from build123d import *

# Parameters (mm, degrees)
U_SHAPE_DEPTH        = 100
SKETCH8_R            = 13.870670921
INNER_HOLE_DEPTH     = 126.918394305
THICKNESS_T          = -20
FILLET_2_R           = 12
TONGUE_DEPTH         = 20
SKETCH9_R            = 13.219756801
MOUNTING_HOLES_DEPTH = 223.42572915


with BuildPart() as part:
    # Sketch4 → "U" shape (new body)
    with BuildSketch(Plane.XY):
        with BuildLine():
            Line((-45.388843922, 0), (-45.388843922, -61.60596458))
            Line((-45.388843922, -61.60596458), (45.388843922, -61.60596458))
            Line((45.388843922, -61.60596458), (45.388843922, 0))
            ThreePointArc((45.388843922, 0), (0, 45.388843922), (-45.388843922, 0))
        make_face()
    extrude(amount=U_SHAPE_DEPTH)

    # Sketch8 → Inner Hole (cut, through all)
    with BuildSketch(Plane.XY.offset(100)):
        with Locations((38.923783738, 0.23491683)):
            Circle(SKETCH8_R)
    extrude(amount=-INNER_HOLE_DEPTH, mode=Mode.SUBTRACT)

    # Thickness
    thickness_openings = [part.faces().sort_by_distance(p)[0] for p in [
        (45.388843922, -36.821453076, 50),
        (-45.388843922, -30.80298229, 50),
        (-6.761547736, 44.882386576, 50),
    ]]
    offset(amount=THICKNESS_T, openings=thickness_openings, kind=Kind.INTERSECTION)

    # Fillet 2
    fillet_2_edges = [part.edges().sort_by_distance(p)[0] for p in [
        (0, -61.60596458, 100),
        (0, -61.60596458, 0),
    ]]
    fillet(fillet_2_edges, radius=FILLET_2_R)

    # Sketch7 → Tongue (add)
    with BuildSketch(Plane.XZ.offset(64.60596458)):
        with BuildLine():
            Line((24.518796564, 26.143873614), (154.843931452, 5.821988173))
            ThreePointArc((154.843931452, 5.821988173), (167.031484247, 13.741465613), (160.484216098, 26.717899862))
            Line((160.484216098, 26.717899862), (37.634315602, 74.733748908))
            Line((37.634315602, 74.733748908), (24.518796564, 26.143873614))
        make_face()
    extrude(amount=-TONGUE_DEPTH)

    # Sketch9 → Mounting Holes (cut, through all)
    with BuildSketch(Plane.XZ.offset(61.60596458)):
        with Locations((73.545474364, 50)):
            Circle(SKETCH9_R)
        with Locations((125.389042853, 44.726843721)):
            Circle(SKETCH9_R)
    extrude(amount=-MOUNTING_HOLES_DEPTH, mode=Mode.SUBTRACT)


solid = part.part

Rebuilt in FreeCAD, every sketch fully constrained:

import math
import FreeCAD as App
import Part
import Sketcher

V = App.Vector
Q = App.Units.Quantity


def edges_at(feature, points):
    """Names of the edges that pass closest to the given points."""
    edges = feature.Shape.Edges
    near = lambda p: min(range(len(edges)), key=lambda i: edges[i].distToShape(Part.Vertex(*p))[0])
    return sorted({f"Edge{near(p) + 1}" for p in points})


def faces_at(feature, points):
    """Names of the faces that lie closest to the given points."""
    faces = feature.Shape.Faces
    near = lambda p: min(range(len(faces)), key=lambda i: faces[i].distToShape(Part.Vertex(*p))[0])
    return sorted({f"Face{near(p) + 1}" for p in points})

doc = App.newDocument("Part")
params = doc.addObject("Spreadsheet::Sheet", "Params")
for row, (alias, value) in enumerate([
    ("pad1_length", "100 mm"),
    ("thickness_wall", "20 mm"),
    ("fillet_radius", "12 mm"),
    ("pad2_length", "20 mm"),
], start=1):
    params.set(f"A{row}", alias)
    params.set(f"B{row}", "=" + value)
    params.setAlias(f"B{row}", alias)

body = doc.addObject("PartDesign::Body", "Body")

# Sketch on XY plane
sketch1 = body.newObject("Sketcher::SketchObject", "Sketch")
sketch1.AttachmentSupport = (doc.getObject("XY_Plane"), [""])
sketch1.MapMode = "FlatFace"
sketch1.addGeometry(Part.LineSegment(V(-45.388844, 0, 0), V(-45.388844, -61.605965, 0)), False)
sketch1.addGeometry(Part.LineSegment(V(-45.388844, -61.605965, 0), V(45.388844, -61.605965, 0)), False)
sketch1.addGeometry(Part.LineSegment(V(45.388844, -61.605965, 0), V(45.388844, 0, 0)), False)
sketch1.addGeometry(Part.ArcOfCircle(Part.Circle(V(0, 0, 0), V(0, 0, 1), 45.388844), math.radians(0), math.radians(180)), False)
sketch1.addConstraint(Sketcher.Constraint("Coincident", 0, 2, 1, 1))
sketch1.addConstraint(Sketcher.Constraint("Coincident", 1, 2, 2, 1))
sketch1.addConstraint(Sketcher.Constraint("Tangent", 2, 2, 3, 1))
sketch1.addConstraint(Sketcher.Constraint("Tangent", 3, 2, 0, 1))
sketch1.addConstraint(Sketcher.Constraint("Vertical", 0))
sketch1.addConstraint(Sketcher.Constraint("Horizontal", 1))
sketch1.addConstraint(Sketcher.Constraint("Vertical", 2))
sketch1.addConstraint(Sketcher.Constraint("Coincident", 3, 3, -1, 1))
sketch1.addConstraint(Sketcher.Constraint("Radius", 3, Q("45.388844 mm")))
sketch1.addConstraint(Sketcher.Constraint("DistanceY", 0, 2, 0, 1, Q("61.605965 mm")))
pad1 = body.newObject("PartDesign::Pad", "Pad")
pad1.Profile = sketch1
pad1.setExpression("Length", "Params.pad1_length")

# Sketch on XY plane
sketch2 = body.newObject("Sketcher::SketchObject", "Sketch001")
sketch2.AttachmentSupport = (doc.getObject("XY_Plane"), [""])
sketch2.MapMode = "FlatFace"
sketch2.AttachmentOffset = App.Placement(V(0, 0, 100), App.Rotation())
sketch2.addGeometry(Part.Circle(V(38.923784, 0.234917, 0), V(0, 0, 1), 13.870671), False)
sketch2.addConstraint(Sketcher.Constraint("Diameter", 0, Q("27.741342 mm")))
sketch2.addConstraint(Sketcher.Constraint("DistanceX", -1, 1, 0, 3, Q("38.923784 mm")))
sketch2.addConstraint(Sketcher.Constraint("DistanceY", -1, 1, 0, 3, Q("0.234917 mm")))
pocket1 = body.newObject("PartDesign::Pocket", "Pocket")
pocket1.Profile = sketch2
pocket1.Type = "ThroughAll"
doc.recompute()

thickness = body.newObject("PartDesign::Thickness", "Thickness")
thickness.Base = (pocket1, faces_at(pocket1, [(45.389, -36.821, 50), (-45.389, -30.803, 50), (-6.762, 44.882, 50)]))
thickness.setExpression("Value", "Params.thickness_wall")
thickness.Reversed = True
thickness.Join = "Intersection"
doc.recompute()

fillet = body.newObject("PartDesign::Fillet", "Fillet")
fillet.Base = (thickness, edges_at(thickness, [(0, -61.606, 100), (0, -61.606, 0)]))
fillet.setExpression("Radius", "Params.fillet_radius")

# Sketch on XZ plane
sketch3 = body.newObject("Sketcher::SketchObject", "Sketch002")
sketch3.AttachmentSupport = (doc.getObject("XZ_Plane"), [""])
sketch3.MapMode = "FlatFace"
sketch3.AttachmentOffset = App.Placement(V(0, 0, 64.605965), App.Rotation())
sketch3.addGeometry(Part.LineSegment(V(24.518797, 26.143874, 0), V(154.843931, 5.821988, 0)), False)
sketch3.addGeometry(Part.ArcOfCircle(Part.Circle(V(156.521207, 16.57843, 0), V(0, 0, 1), 10.886427), math.radians(-98.862884), math.radians(68.651971)), False)
sketch3.addGeometry(Part.LineSegment(V(160.484216, 26.7179, 0), V(37.634316, 74.733749, 0)), False)
sketch3.addGeometry(Part.LineSegment(V(37.634316, 74.733749, 0), V(24.518797, 26.143874, 0)), False)
sketch3.addConstraint(Sketcher.Constraint("Tangent", 0, 2, 1, 1))
sketch3.addConstraint(Sketcher.Constraint("Tangent", 1, 2, 2, 1))
sketch3.addConstraint(Sketcher.Constraint("Coincident", 2, 2, 3, 1))
sketch3.addConstraint(Sketcher.Constraint("Coincident", 3, 2, 0, 1))
sketch3.addConstraint(Sketcher.Constraint("Equal", 0, 2))
sketch3.addConstraint(Sketcher.Constraint("Radius", 1, Q("10.886427 mm")))
sketch3.addConstraint(Sketcher.Constraint("DistanceY", -1, 1, 1, 2, Q("26.7179 mm")))
sketch3.addConstraint(Sketcher.Constraint("DistanceX", 2, 2, 1, 2, Q("122.8499 mm")))
sketch3.addConstraint(Sketcher.Constraint("DistanceY", -1, 1, 1, 3, Q("16.57843 mm")))
sketch3.addConstraint(Sketcher.Constraint("DistanceX", -1, 1, 0, 2, Q("154.843931 mm")))
sketch3.addConstraint(Sketcher.Constraint("DistanceY", -1, 1, 0, 2, Q("5.821988 mm")))
pad2 = body.newObject("PartDesign::Pad", "Pad001")
pad2.Profile = sketch3
pad2.setExpression("Length", "Params.pad2_length")
pad2.Reversed = True

# Sketch on XZ plane
sketch4 = body.newObject("Sketcher::SketchObject", "Sketch003")
sketch4.AttachmentSupport = (doc.getObject("XZ_Plane"), [""])
sketch4.MapMode = "FlatFace"
sketch4.AttachmentOffset = App.Placement(V(0, 0, 61.605965), App.Rotation())
sketch4.addGeometry(Part.Circle(V(73.545474, 50, 0), V(0, 0, 1), 13.219757), False)
sketch4.addGeometry(Part.Circle(V(125.389043, 44.726844, 0), V(0, 0, 1), 13.219757), False)
sketch4.addConstraint(Sketcher.Constraint("Equal", 0, 1))
sketch4.addConstraint(Sketcher.Constraint("DistanceY", -1, 1, 0, 3, Q("50 mm")))
sketch4.addConstraint(Sketcher.Constraint("Diameter", 0, Q("26.439514 mm")))
sketch4.addConstraint(Sketcher.Constraint("DistanceX", 0, 3, 1, 3, Q("51.843568 mm")))
sketch4.addConstraint(Sketcher.Constraint("DistanceX", -1, 1, 0, 3, Q("73.545474 mm")))
sketch4.addConstraint(Sketcher.Constraint("DistanceY", -1, 1, 1, 3, Q("44.726844 mm")))
pocket2 = body.newObject("PartDesign::Pocket", "Pocket001")
pocket2.Profile = sketch4
pocket2.Type = "ThroughAll"

doc.recompute()
